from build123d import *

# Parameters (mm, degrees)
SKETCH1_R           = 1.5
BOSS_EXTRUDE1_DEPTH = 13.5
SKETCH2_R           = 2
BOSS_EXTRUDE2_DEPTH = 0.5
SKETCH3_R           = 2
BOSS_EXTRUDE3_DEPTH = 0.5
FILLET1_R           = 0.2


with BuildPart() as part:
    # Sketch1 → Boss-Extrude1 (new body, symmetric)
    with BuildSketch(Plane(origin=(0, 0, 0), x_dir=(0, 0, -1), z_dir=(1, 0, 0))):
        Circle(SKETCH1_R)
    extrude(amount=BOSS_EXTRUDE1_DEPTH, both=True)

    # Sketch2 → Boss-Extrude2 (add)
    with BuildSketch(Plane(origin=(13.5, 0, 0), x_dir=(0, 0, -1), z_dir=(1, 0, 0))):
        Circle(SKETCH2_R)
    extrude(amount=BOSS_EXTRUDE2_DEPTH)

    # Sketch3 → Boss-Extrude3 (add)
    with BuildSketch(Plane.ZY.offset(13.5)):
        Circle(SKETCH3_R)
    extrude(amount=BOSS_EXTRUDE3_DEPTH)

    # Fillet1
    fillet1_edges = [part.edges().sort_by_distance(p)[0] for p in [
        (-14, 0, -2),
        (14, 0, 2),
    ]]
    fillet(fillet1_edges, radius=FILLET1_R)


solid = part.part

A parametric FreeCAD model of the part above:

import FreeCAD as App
import Part
import Sketcher


def edges_at(feature, points):
    """Names of the edges that pass closest to the given points."""
    edges = feature.Shape.Edges
    near = lambda p: min(range(len(edges)), key=lambda i: edges[i].distToShape(Part.Vertex(*p))[0])
    return sorted({f"Edge{near(p) + 1}" for p in points})

doc = App.newDocument("Part")
body = doc.addObject("PartDesign::Body", "Body")

# Sketch on YZ plane
sketch1 = doc.addObject("Sketcher::SketchObject", "Sketch")
body.addObject(sketch1)
sketch1.AttachmentSupport = (doc.YZ_Plane, [""])
sketch1.MapMode = "FlatFace"
sketch1.addGeometry(Part.Circle(App.Vector(0, 0, 0), App.Vector(0, 0, 1), 1.5), False)
sketch1.addConstraint([
    Sketcher.Constraint("Coincident", 0, 3, -1, 1),
    Sketcher.Constraint("Diameter", 0, 3.0),
])
pad1 = doc.addObject("PartDesign::Pad", "Pad")
body.addObject(pad1)
pad1.Profile = sketch1
pad1.Length = 27
pad1.Midplane = True

# Sketch on YZ plane
sketch2 = doc.addObject("Sketcher::SketchObject", "Sketch001")
body.addObject(sketch2)
sketch2.AttachmentSupport = (doc.YZ_Plane, [""])
sketch2.MapMode = "FlatFace"
sketch2.AttachmentOffset = App.Placement(App.Vector(0, 0, 13.5), App.Rotation())
sketch2.addGeometry(Part.Circle(App.Vector(0, 0, 0), App.Vector(0, 0, 1), 2), False)
sketch2.addConstraint([
    Sketcher.Constraint("Coincident", 0, 3, -1, 1),
    Sketcher.Constraint("Diameter", 0, 4.0),
])
pad2 = doc.addObject("PartDesign::Pad", "Pad001")
body.addObject(pad2)
pad2.Profile = sketch2
pad2.Length = 0.5

# Sketch on YZ plane
sketch3 = doc.addObject("Sketcher::SketchObject", "Sketch002")
body.addObject(sketch3)
sketch3.AttachmentSupport = (doc.YZ_Plane, [""])
sketch3.MapMode = "FlatFace"
sketch3.AttachmentOffset = App.Placement(App.Vector(0, 0, -13.5), App.Rotation())
sketch3.addGeometry(Part.Circle(App.Vector(0, 0, 0), App.Vector(0, 0, 1), 2), False)
sketch3.addConstraint([
    Sketcher.Constraint("Coincident", 0, 3, -1, 1),
    Sketcher.Constraint("Diameter", 0, 4.0),
])
pad3 = doc.addObject("PartDesign::Pad", "Pad002")
body.addObject(pad3)
pad3.Profile = sketch3
pad3.Length = 0.5
pad3.Reversed = True
doc.recompute()

fillet = doc.addObject("PartDesign::Fillet", "Fillet")
body.addObject(fillet)
fillet.Base = (pad3, edges_at(pad3, [(-14, 0, -2), (14, 0, 2)]))
fillet.Radius = 0.2

doc.recompute()
